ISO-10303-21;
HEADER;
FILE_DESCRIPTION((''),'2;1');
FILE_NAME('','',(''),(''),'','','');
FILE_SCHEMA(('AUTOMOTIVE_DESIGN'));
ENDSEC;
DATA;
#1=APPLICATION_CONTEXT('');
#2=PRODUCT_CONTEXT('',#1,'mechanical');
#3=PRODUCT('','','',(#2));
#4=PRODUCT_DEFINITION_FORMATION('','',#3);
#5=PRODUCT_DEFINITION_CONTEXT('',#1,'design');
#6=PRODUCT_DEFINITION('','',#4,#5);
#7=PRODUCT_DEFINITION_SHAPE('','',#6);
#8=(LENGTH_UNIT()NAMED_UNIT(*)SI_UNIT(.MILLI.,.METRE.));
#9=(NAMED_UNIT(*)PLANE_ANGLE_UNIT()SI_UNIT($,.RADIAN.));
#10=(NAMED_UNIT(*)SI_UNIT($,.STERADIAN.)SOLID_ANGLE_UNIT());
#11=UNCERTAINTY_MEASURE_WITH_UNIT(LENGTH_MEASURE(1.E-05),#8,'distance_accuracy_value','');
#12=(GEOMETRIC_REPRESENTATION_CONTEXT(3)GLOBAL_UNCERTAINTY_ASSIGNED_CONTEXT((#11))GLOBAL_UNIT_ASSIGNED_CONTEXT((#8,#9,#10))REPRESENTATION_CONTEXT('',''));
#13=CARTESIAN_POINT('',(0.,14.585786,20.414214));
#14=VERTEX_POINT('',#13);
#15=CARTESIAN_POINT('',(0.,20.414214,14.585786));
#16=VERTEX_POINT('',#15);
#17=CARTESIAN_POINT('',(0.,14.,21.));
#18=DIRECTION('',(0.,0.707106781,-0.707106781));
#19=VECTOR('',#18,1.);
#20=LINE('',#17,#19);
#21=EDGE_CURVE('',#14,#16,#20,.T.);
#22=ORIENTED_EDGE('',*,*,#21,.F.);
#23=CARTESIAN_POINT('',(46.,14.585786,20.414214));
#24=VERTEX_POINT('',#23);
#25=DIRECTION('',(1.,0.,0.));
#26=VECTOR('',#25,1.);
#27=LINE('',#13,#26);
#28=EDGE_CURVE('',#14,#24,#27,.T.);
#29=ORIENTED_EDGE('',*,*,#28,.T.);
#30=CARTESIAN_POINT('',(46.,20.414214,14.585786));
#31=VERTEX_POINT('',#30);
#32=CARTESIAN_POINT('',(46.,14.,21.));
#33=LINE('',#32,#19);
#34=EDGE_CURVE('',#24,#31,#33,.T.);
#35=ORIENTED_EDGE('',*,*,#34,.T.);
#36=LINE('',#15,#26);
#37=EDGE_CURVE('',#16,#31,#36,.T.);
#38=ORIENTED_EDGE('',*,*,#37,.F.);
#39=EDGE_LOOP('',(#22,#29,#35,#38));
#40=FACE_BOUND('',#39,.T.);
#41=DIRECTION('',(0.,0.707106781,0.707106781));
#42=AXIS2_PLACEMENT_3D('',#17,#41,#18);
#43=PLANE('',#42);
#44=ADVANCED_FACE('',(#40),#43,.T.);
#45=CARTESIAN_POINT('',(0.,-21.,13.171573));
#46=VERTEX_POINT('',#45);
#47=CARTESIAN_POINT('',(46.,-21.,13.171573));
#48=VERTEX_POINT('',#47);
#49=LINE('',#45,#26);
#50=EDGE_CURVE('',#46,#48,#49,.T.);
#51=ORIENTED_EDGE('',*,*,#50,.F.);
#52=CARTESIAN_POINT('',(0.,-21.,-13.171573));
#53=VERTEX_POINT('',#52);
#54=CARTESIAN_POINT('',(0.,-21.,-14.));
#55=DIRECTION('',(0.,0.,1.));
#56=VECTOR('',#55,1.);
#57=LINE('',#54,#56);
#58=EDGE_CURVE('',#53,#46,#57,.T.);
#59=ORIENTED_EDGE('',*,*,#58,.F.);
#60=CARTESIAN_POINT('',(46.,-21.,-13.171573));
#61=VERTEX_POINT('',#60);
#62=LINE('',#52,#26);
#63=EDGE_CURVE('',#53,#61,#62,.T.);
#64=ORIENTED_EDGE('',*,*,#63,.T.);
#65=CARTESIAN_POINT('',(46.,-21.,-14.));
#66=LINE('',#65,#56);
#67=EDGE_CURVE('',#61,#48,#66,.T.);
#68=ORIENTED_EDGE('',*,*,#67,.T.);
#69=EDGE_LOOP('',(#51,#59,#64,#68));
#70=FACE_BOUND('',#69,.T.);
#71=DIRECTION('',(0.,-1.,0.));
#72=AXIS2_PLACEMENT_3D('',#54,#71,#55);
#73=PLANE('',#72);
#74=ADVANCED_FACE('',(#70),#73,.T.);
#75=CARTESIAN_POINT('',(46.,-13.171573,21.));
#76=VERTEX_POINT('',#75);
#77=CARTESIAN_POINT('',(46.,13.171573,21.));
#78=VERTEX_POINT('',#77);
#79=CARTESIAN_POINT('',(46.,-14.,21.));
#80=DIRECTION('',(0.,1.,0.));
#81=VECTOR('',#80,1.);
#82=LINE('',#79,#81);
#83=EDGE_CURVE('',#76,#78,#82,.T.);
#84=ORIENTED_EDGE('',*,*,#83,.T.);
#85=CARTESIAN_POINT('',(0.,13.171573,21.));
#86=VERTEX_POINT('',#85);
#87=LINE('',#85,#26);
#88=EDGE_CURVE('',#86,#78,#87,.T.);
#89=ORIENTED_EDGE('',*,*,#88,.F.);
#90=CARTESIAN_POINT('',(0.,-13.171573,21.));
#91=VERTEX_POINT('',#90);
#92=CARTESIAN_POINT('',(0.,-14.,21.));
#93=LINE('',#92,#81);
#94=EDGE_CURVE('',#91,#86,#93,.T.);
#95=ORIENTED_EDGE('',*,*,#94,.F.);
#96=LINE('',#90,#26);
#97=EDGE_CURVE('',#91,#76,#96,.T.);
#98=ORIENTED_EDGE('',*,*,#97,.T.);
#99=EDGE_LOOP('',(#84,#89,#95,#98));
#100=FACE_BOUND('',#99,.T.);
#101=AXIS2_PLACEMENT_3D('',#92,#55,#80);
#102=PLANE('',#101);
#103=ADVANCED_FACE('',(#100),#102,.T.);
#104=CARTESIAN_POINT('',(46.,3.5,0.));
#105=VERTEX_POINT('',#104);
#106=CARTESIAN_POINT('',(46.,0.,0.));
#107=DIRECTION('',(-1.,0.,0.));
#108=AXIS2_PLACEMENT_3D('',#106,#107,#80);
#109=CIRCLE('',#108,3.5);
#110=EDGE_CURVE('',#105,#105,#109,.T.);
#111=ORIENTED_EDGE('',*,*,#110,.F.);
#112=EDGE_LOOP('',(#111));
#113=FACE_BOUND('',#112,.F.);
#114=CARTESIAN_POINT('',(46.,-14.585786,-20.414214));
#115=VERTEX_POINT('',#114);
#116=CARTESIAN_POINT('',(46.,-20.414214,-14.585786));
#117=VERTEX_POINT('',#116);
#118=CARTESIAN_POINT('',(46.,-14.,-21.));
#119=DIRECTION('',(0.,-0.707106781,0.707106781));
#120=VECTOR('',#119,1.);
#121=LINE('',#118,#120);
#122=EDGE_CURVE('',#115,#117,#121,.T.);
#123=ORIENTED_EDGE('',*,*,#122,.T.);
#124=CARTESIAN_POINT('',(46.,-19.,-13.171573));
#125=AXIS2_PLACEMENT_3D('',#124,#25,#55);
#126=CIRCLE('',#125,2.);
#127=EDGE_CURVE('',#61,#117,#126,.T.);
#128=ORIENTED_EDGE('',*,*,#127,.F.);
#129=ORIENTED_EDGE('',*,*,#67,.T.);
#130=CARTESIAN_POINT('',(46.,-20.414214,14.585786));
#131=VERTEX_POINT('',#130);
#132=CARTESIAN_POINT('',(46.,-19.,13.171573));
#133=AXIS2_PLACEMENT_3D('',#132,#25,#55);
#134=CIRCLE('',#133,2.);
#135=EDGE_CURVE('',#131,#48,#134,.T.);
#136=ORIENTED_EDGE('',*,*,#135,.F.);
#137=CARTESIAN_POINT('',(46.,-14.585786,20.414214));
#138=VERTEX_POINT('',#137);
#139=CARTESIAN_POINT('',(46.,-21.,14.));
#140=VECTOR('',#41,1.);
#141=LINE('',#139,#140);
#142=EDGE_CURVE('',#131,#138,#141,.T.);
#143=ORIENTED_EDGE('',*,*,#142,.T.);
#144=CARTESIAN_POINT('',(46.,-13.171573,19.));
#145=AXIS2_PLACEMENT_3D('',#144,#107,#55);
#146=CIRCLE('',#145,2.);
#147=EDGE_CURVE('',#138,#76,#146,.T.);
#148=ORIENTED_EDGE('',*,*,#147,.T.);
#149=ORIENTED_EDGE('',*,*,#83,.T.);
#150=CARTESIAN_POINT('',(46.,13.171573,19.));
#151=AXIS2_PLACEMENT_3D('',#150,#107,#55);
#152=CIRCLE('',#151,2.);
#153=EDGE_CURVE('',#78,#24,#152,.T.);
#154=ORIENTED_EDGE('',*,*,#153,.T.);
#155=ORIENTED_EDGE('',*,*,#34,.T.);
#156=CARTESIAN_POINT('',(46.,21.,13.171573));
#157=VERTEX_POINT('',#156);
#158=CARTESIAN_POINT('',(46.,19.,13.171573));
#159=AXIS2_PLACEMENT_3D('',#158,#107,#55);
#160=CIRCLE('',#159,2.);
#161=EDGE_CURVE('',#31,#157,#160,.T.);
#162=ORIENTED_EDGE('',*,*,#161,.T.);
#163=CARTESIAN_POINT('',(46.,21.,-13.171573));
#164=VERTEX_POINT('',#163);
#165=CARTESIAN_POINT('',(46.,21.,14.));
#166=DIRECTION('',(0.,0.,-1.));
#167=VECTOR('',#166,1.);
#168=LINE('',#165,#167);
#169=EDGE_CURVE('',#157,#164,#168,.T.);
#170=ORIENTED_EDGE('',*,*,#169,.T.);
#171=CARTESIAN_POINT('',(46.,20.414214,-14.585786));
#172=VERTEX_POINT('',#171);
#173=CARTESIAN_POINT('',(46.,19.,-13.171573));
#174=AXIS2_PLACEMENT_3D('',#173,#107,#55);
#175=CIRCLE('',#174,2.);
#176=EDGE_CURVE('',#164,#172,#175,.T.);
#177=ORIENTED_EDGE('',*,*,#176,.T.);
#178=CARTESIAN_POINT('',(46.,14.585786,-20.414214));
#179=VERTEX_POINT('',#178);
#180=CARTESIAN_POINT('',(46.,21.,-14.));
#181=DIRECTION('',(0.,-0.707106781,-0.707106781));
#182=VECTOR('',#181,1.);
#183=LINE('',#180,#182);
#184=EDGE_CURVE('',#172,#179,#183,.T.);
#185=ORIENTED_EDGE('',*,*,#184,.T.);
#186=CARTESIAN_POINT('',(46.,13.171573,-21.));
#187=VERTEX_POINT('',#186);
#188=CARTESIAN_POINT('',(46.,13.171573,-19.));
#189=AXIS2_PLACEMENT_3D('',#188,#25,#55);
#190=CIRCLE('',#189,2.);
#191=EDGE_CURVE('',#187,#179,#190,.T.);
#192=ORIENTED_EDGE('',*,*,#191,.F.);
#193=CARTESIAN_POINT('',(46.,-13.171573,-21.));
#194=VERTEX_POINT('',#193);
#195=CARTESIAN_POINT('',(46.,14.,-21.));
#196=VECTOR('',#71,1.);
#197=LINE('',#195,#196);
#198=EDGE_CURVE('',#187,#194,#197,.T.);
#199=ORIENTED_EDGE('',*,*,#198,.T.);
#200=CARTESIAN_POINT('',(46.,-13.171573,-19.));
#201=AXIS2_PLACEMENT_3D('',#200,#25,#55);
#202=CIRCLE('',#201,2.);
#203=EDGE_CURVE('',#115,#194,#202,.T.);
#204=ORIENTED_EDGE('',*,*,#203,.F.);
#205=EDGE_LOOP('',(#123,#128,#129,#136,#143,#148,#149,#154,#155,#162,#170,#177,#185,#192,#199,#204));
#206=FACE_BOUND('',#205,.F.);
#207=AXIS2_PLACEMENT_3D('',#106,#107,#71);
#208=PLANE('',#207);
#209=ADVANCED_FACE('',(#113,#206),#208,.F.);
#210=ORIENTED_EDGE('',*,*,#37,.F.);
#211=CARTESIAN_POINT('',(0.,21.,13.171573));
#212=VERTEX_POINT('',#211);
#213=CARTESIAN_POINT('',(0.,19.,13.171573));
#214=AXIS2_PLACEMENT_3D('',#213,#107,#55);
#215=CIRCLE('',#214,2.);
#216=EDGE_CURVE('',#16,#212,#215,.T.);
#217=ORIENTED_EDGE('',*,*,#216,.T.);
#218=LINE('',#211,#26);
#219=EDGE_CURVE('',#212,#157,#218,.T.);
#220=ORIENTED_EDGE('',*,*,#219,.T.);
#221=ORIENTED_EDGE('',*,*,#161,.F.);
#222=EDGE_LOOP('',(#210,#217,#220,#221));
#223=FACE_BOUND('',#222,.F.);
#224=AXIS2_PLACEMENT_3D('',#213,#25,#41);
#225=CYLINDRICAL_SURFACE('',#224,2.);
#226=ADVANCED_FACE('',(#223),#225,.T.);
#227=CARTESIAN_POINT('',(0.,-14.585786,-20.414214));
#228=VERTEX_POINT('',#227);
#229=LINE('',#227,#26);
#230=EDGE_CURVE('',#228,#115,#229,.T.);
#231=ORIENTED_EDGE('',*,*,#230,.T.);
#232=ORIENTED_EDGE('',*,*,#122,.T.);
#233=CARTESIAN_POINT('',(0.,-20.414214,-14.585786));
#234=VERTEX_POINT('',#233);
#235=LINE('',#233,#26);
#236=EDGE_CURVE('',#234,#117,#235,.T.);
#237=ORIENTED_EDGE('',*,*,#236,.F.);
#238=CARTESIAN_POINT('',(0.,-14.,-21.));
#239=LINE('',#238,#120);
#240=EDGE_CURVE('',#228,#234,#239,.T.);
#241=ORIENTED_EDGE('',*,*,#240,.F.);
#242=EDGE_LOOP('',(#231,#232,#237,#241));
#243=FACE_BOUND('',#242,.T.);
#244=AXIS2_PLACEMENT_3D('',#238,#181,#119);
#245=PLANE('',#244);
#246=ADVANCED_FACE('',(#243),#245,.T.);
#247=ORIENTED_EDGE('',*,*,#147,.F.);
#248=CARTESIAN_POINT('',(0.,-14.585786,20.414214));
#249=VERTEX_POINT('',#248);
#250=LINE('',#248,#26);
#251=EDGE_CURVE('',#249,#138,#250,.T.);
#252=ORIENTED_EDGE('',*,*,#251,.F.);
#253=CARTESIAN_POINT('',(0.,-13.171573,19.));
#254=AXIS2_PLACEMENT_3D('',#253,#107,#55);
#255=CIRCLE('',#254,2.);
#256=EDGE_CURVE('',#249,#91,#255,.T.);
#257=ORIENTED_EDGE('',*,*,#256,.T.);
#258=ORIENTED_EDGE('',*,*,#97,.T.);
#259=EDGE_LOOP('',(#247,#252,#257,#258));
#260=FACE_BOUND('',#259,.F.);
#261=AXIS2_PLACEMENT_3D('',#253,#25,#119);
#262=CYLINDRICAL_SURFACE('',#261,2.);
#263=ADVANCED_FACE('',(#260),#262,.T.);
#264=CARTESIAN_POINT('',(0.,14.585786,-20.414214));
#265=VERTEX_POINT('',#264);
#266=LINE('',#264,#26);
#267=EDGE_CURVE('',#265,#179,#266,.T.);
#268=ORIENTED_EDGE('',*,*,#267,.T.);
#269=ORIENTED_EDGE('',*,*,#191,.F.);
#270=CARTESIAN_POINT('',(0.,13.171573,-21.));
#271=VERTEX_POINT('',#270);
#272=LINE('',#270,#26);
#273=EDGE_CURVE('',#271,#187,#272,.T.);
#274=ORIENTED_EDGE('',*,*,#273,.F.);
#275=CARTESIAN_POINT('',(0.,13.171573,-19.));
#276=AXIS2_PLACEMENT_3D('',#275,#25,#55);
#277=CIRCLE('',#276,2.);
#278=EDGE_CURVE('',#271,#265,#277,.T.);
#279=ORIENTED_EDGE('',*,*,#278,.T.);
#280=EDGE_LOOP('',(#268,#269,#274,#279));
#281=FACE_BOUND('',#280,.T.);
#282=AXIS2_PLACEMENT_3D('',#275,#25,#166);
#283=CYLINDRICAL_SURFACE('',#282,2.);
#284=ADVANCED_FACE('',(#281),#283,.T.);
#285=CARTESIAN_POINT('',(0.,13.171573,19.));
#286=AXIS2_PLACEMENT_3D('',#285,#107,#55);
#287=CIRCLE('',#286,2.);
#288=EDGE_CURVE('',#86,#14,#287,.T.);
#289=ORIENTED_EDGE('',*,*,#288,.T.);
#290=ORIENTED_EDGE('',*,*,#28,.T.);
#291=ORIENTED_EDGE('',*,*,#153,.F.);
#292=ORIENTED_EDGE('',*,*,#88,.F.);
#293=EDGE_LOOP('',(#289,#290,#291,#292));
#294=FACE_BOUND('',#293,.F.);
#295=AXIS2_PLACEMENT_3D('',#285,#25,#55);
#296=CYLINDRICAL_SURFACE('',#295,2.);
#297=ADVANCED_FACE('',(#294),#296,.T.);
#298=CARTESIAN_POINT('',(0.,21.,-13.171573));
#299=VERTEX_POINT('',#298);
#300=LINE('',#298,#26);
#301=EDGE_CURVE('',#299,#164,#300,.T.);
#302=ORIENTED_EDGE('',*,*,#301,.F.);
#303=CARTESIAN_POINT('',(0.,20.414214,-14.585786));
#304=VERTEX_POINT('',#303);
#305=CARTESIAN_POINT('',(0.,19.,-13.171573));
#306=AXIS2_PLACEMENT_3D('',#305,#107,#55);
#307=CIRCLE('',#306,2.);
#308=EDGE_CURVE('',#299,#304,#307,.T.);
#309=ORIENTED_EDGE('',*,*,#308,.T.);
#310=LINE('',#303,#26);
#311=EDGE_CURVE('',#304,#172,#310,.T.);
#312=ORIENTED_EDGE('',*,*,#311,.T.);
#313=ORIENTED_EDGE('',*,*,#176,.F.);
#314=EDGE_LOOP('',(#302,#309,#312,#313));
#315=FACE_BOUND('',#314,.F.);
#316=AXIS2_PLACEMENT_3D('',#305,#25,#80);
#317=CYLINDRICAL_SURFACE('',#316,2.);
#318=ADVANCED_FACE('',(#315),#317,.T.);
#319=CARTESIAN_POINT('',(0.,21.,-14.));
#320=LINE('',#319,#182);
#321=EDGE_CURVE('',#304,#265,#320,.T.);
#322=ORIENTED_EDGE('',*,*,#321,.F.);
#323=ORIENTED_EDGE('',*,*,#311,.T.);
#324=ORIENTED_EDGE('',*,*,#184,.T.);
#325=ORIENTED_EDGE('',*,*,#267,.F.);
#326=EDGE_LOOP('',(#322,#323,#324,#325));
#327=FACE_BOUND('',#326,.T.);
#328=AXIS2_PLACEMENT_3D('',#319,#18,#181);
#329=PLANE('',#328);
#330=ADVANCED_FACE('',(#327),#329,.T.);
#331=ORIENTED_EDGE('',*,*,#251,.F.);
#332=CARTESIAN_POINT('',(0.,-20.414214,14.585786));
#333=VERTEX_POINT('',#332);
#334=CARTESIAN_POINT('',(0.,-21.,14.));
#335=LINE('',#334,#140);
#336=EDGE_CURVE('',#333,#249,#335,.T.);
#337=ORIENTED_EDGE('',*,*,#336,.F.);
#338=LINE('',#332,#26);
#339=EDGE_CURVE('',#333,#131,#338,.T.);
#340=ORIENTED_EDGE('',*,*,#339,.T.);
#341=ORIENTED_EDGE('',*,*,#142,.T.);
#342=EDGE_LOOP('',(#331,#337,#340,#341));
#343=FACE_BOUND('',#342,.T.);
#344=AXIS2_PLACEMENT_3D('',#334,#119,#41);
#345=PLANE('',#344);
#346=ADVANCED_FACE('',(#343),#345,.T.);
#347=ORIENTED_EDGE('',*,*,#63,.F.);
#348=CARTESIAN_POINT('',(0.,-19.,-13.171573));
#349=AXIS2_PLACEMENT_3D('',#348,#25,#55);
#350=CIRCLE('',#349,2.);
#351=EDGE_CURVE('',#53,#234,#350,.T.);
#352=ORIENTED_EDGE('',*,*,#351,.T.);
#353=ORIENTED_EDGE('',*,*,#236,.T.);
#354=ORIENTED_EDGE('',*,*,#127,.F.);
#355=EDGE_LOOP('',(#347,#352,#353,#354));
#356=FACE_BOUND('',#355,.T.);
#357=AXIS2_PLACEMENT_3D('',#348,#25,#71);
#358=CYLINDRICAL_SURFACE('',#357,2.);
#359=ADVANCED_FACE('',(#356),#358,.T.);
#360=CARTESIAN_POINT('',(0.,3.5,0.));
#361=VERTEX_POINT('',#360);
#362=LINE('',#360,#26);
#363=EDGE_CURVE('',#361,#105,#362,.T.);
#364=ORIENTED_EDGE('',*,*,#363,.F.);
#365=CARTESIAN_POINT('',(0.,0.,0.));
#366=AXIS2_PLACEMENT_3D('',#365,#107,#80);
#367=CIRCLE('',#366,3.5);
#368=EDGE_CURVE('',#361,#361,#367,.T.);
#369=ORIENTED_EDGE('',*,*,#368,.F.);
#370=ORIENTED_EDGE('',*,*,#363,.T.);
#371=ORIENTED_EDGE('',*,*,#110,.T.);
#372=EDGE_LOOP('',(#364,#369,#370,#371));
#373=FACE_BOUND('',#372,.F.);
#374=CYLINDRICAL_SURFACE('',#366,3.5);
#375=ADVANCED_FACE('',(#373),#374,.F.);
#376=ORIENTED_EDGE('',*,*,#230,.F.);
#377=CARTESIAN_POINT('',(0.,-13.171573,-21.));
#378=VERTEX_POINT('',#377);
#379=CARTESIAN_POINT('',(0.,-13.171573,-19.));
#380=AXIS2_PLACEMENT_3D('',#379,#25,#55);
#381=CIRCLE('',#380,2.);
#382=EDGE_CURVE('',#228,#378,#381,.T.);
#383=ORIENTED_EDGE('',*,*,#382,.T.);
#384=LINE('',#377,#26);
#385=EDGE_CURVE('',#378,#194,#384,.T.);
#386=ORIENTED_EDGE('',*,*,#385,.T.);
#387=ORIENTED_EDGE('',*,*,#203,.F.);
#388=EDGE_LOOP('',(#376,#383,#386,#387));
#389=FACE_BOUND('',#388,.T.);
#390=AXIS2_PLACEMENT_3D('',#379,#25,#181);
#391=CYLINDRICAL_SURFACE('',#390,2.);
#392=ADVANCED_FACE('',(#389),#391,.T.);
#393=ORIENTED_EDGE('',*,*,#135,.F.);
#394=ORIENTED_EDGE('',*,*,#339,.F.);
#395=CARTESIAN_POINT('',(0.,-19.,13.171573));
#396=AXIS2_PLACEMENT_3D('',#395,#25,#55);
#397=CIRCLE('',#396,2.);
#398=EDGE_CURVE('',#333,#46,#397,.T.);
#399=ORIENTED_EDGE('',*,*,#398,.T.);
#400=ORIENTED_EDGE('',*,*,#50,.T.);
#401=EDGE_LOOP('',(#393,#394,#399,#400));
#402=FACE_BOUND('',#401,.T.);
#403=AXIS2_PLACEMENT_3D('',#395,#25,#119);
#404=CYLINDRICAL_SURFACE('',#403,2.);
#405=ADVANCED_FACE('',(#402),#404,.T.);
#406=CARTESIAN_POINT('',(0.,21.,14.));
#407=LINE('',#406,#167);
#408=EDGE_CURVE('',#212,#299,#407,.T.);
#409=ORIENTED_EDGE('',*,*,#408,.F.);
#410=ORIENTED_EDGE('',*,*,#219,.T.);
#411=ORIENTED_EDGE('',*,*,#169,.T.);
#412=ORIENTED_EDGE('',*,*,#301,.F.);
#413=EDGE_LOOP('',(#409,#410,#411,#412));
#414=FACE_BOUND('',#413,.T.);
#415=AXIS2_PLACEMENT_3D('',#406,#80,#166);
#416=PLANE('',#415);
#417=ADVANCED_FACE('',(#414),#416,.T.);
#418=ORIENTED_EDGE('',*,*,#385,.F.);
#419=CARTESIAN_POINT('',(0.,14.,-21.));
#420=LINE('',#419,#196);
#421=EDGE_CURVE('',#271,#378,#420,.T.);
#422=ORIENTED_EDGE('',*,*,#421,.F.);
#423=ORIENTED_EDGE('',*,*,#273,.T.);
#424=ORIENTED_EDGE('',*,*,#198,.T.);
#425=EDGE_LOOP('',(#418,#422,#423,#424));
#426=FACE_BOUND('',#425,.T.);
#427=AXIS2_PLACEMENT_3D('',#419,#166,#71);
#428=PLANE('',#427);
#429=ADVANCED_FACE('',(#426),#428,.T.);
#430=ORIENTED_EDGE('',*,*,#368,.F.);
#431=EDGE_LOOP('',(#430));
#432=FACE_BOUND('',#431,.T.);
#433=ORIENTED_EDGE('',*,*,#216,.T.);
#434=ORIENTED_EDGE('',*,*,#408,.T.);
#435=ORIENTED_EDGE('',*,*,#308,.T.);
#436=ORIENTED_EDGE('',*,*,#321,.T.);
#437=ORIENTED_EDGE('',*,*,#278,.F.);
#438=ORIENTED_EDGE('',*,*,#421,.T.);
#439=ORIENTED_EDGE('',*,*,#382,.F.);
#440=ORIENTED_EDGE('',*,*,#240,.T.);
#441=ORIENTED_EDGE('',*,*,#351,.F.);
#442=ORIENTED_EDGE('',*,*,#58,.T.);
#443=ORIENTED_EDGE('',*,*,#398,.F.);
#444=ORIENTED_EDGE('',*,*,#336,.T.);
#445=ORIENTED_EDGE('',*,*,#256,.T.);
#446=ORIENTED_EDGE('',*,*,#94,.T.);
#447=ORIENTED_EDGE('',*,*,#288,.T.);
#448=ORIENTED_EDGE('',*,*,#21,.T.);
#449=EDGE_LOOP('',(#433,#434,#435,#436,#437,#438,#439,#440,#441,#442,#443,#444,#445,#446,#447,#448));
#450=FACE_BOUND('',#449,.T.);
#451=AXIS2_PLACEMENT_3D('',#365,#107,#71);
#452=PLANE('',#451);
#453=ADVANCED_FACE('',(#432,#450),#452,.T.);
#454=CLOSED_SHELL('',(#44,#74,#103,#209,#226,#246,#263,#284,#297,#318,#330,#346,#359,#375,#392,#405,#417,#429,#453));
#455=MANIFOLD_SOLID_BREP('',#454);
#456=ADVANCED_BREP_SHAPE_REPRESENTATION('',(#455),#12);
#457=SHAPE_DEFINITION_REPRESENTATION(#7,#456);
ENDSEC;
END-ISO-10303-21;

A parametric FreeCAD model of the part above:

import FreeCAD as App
import Part
import Sketcher

V = App.Vector
Q = App.Units.Quantity


def edges_at(feature, points):
    """Names of the edges that pass closest to the given points."""
    edges = feature.Shape.Edges
    near = lambda p: min(range(len(edges)), key=lambda i: edges[i].distToShape(Part.Vertex(*p))[0])
    return sorted({f"Edge{near(p) + 1}" for p in points})

doc = App.newDocument("Part")
params = doc.addObject("Spreadsheet::Sheet", "Params")
for row, (alias, value) in enumerate([
    ("sketch1_width", "28 mm"),
    ("pad1_length", "46 mm"),
    ("sketch2_diameter", "7 mm"),
    ("fillet_radius", "2 mm"),
], start=1):
    params.set(f"A{row}", alias)
    params.set(f"B{row}", "=" + value)
    params.setAlias(f"B{row}", alias)

body = doc.addObject("PartDesign::Body", "Body")

# Sketch on YZ plane
sketch1 = body.newObject("Sketcher::SketchObject", "Sketch")
sketch1.AttachmentSupport = (doc.getObject("YZ_Plane"), [""])
sketch1.MapMode = "FlatFace"
sketch1.addGeometry(Part.LineSegment(V(-14, 21, 0), V(-21, 14, 0)), False)
sketch1.addGeometry(Part.LineSegment(V(-21, 14, 0), V(-21, -14, 0)), False)
sketch1.addGeometry(Part.LineSegment(V(-21, -14, 0), V(-14, -21, 0)), False)
sketch1.addGeometry(Part.LineSegment(V(-14, -21, 0), V(14, -21, 0)), False)
sketch1.addGeometry(Part.LineSegment(V(14, -21, 0), V(21, -14, 0)), False)
sketch1.addGeometry(Part.LineSegment(V(21, -14, 0), V(21, 14, 0)), False)
sketch1.addGeometry(Part.LineSegment(V(21, 14, 0), V(14, 21, 0)), False)
sketch1.addGeometry(Part.LineSegment(V(14, 21, 0), V(-14, 21, 0)), False)
sketch1.addConstraint(Sketcher.Constraint("Coincident", 0, 2, 1, 1))
sketch1.addConstraint(Sketcher.Constraint("Coincident", 1, 2, 2, 1))
sketch1.addConstraint(Sketcher.Constraint("Coincident", 2, 2, 3, 1))
sketch1.addConstraint(Sketcher.Constraint("Coincident", 3, 2, 4, 1))
sketch1.addConstraint(Sketcher.Constraint("Coincident", 4, 2, 5, 1))
sketch1.addConstraint(Sketcher.Constraint("Coincident", 5, 2, 6, 1))
sketch1.addConstraint(Sketcher.Constraint("Coincident", 6, 2, 7, 1))
sketch1.addConstraint(Sketcher.Constraint("Coincident", 7, 2, 0, 1))
sketch1.addConstraint(Sketcher.Constraint("Vertical", 1))
sketch1.addConstraint(Sketcher.Constraint("Horizontal", 3))
sketch1.addConstraint(Sketcher.Constraint("Vertical", 5))
sketch1.addConstraint(Sketcher.Constraint("Horizontal", 7))
sketch1.addConstraint(Sketcher.Constraint("Symmetric", 0, 2, 4, 2, -1, 1))
sketch1.addConstraint(Sketcher.Constraint("Symmetric", 2, 2, 6, 2, -1, 1))
sketch1.addConstraint(Sketcher.Constraint("Perpendicular", 0, 2))
sketch1.addConstraint(Sketcher.Constraint("Perpendicular", 2, 4))
sketch1.addConstraint(Sketcher.Constraint("Perpendicular", 4, 6))
sketch1.addConstraint(Sketcher.Constraint("Horizontal", 1, 2, 4, 2))
sketch1.addConstraint(Sketcher.Constraint("Vertical", 3, 2, 6, 2))
sketch1.addConstraint(Sketcher.Constraint("Equal", 7, 1))
sketch1.addConstraint(Sketcher.Constraint("DistanceX", 3, 1, 3, 2, Q("28 mm")))
sketch1.addConstraint(Sketcher.Constraint("DistanceX", 0, 2, -1, 1, Q("21 mm")))
sketch1.setExpression("Constraints[20]", "Params.sketch1_width")
pad1 = body.newObject("PartDesign::Pad", "Pad")
pad1.Profile = sketch1
pad1.setExpression("Length", "Params.pad1_length")

# Sketch on YZ plane
sketch2 = body.newObject("Sketcher::SketchObject", "Sketch001")
sketch2.AttachmentSupport = (doc.getObject("YZ_Plane"), [""])
sketch2.MapMode = "FlatFace"
sketch2.addGeometry(Part.Circle(V(0, 0, 0), V(0, 0, 1), 3.5), False)
sketch2.addConstraint(Sketcher.Constraint("Coincident", 0, 3, -1, 1))
sketch2.addConstraint(Sketcher.Constraint("Diameter", 0, Q("7 mm")))
sketch2.setExpression("Constraints[1]", "Params.sketch2_diameter")
pocket1 = body.newObject("PartDesign::Pocket", "Pocket")
pocket1.Profile = sketch2
pocket1.Type = "ThroughAll"
pocket1.Reversed = True
doc.recompute()

fillet = body.newObject("PartDesign::Fillet", "Fillet")
fillet.Base = (pocket1, edges_at(pocket1, [
    (23, -21, -14),
    (23, -21, 14),
    (23, -14, 21),
    (23, 14, 21),
    (23, -14, -21),
    (23, 14, -21),
    (23, 21, -14),
    (23, 21, 14),
]))
fillet.setExpression("Radius", "Params.fillet_radius")

doc.recompute()
